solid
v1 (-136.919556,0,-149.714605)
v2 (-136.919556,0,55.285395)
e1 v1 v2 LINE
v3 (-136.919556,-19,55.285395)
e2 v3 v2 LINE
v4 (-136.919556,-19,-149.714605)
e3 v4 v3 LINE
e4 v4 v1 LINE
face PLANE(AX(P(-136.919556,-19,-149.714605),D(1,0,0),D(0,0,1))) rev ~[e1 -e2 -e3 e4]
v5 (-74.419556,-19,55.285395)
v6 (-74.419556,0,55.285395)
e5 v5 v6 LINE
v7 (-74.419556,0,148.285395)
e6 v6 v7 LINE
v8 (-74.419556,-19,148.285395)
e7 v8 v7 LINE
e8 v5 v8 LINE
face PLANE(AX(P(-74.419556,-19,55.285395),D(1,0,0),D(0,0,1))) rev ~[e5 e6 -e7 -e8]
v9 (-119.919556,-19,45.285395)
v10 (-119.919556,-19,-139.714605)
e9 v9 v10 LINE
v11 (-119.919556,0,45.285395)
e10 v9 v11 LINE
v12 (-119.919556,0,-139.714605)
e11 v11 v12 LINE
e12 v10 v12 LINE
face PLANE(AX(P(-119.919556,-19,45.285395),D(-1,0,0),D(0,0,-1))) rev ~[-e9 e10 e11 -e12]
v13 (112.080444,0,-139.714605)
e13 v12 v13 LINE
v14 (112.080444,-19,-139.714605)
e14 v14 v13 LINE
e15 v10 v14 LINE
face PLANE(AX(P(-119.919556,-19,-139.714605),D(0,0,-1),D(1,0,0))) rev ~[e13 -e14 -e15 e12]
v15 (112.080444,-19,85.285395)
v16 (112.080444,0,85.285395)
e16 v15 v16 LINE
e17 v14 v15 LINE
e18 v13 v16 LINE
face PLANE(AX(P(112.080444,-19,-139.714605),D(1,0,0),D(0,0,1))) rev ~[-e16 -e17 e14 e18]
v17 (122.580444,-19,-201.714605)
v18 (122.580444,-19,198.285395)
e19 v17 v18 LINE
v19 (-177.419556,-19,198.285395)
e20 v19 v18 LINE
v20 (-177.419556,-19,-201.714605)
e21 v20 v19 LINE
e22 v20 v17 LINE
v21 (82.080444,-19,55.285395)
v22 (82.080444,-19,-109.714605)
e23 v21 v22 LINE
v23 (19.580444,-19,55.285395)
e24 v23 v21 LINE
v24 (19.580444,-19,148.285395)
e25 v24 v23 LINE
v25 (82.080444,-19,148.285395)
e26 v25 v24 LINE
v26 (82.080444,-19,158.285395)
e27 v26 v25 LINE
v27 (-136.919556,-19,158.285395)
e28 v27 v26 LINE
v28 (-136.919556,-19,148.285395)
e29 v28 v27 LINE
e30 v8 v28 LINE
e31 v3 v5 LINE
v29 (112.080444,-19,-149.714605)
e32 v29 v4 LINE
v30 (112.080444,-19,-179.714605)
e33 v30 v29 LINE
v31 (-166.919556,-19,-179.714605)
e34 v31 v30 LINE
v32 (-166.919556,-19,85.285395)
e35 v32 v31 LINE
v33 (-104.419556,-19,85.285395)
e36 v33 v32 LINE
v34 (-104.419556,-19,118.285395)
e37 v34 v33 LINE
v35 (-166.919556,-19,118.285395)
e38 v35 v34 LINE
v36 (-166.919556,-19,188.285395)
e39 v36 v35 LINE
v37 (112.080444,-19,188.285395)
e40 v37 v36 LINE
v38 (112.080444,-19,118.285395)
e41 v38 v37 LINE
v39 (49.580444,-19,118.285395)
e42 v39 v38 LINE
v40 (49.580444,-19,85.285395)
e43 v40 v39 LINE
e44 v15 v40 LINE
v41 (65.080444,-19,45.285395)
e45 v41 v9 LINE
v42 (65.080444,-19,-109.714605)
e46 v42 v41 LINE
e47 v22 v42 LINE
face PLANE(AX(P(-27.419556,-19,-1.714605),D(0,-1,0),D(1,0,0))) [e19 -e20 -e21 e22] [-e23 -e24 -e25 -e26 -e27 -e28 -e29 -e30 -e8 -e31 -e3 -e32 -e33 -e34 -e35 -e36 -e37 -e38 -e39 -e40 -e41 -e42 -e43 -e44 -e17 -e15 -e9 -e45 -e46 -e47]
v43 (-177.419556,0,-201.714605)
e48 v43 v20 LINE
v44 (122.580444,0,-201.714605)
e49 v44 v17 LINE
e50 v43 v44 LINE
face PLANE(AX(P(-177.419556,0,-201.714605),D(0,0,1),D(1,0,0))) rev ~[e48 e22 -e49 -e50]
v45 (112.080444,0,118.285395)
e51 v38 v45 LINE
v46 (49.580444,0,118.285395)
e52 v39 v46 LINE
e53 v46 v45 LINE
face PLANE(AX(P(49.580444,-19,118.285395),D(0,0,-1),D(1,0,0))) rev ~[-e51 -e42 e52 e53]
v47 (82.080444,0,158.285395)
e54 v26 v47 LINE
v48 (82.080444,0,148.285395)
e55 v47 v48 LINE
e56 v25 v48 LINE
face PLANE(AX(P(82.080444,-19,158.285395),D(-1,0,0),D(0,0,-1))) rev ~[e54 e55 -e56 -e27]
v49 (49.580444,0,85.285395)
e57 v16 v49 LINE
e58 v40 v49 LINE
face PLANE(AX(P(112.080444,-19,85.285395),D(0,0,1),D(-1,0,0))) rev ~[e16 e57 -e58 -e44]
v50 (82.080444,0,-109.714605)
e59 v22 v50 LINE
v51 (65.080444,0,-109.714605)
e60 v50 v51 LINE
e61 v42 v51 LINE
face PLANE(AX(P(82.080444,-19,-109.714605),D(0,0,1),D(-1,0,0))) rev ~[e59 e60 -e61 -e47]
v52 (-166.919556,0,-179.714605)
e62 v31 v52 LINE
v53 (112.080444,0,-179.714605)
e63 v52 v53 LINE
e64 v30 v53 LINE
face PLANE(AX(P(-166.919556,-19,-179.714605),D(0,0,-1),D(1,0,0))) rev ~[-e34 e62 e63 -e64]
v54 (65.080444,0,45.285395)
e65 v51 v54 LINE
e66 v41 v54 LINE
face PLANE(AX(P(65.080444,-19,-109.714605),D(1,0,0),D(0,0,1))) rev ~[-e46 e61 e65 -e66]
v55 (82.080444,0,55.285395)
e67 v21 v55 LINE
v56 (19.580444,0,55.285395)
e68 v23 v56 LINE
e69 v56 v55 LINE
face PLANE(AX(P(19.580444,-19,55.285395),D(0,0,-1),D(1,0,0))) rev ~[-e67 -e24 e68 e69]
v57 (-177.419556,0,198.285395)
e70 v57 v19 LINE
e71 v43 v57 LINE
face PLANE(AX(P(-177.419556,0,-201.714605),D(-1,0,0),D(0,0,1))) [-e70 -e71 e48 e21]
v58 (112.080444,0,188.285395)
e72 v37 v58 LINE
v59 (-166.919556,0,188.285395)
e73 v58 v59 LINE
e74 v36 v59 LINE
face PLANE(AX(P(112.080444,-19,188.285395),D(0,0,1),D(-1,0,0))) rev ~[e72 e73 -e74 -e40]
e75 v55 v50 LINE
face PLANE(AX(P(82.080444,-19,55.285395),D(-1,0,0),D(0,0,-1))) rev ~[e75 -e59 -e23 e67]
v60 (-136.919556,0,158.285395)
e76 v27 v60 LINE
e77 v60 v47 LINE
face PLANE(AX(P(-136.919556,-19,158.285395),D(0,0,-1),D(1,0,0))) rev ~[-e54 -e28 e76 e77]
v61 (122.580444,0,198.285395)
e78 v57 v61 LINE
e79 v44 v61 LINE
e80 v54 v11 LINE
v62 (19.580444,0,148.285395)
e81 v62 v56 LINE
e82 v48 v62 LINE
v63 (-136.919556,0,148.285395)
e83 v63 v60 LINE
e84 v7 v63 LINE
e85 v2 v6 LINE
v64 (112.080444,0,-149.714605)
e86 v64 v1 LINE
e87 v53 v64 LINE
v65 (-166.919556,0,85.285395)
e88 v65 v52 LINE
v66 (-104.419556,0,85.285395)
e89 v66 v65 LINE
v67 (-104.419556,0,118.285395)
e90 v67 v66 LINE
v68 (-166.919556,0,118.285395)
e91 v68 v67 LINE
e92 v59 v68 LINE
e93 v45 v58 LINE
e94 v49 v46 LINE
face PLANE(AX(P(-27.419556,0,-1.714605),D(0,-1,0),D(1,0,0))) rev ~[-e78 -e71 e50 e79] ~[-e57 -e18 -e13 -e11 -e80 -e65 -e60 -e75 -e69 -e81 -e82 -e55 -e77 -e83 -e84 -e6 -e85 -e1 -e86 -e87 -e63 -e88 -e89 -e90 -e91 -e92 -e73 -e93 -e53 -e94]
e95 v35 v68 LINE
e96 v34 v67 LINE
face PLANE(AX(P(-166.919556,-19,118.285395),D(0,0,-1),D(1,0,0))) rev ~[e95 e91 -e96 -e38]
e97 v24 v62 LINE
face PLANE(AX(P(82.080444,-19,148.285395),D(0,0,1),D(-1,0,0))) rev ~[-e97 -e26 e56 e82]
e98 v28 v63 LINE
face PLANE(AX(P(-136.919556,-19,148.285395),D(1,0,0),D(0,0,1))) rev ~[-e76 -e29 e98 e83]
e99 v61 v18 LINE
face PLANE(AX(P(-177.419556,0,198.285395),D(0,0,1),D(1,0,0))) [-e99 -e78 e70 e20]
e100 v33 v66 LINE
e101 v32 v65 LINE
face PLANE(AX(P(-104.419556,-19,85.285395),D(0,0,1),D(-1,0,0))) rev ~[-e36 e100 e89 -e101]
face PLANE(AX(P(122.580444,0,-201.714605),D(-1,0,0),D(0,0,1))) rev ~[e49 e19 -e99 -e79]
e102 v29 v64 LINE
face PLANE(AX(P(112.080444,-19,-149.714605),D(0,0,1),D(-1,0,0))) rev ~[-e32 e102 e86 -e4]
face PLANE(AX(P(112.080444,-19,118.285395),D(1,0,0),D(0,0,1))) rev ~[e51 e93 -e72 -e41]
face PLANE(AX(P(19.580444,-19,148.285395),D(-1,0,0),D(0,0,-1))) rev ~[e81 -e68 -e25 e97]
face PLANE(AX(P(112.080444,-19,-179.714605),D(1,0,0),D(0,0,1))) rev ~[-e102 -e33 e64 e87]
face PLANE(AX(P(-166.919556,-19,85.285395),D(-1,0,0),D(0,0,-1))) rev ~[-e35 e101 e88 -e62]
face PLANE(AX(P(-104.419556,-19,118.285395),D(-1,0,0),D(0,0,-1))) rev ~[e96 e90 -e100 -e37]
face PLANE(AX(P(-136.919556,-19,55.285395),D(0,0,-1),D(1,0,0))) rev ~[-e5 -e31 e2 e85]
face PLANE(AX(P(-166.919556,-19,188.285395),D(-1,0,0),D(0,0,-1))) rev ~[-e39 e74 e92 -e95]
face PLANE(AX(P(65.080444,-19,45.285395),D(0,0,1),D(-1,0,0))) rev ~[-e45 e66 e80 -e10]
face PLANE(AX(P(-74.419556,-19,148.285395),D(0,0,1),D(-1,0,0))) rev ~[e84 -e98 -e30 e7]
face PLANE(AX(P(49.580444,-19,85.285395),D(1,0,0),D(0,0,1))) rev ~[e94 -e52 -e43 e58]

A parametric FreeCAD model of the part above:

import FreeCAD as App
import Part
import Sketcher

V = App.Vector
Q = App.Units.Quantity


def add_polygon(sketch, points):
    """Adds a closed chain of lines whose ends are joined by coincident constraints."""
    first, n = sketch.GeometryCount, len(points)
    for a, b in zip(points, points[1:] + points[:1]):
        sketch.addGeometry(Part.LineSegment(App.Vector(*a, 0), App.Vector(*b, 0)), False)
    for i in range(n):
        sketch.addConstraint(Sketcher.Constraint("Coincident", first + i, 2, first + (i + 1) % n, 1))

doc = App.newDocument("Part")
params = doc.addObject("Spreadsheet::Sheet", "Params")
for row, (alias, value) in enumerate([
    ("sketch1_width", "300 mm"),
    ("sketch1_height", "400 mm"),
    ("pad1_length", "19 mm"),
    ("sketch2_width", "279 mm"),
    ("sketch2_width2", "249 mm"),
    ("sketch2_width3", "219 mm"),
    ("sketch2_width4", "17 mm"),
    ("sketch2_width5", "185 mm"),
    ("pocket1_length", "19 mm"),
], start=1):
    params.set(f"A{row}", alias)
    params.set(f"B{row}", "=" + value)
    params.setAlias(f"B{row}", alias)

body = doc.addObject("PartDesign::Body", "Body")

# Sketch on XZ plane
sketch1 = body.newObject("Sketcher::SketchObject", "Sketch")
sketch1.AttachmentSupport = (doc.getObject("XZ_Plane"), [""])
sketch1.MapMode = "FlatFace"
add_polygon(sketch1, [(-177.419556, 198.285395), (-177.419556, -201.714605), (122.580444, -201.714605), (122.580444, 198.285395)])  # lines 0-3
sketch1.addConstraint(Sketcher.Constraint("Vertical", 0))
sketch1.addConstraint(Sketcher.Constraint("Horizontal", 1))
sketch1.addConstraint(Sketcher.Constraint("Vertical", 2))
sketch1.addConstraint(Sketcher.Constraint("Horizontal", 3))
sketch1.addConstraint(Sketcher.Constraint("DistanceX", 1, 1, 1, 2, Q("300 mm")))
sketch1.addConstraint(Sketcher.Constraint("DistanceY", 0, 2, 0, 1, Q("400 mm")))
sketch1.addConstraint(Sketcher.Constraint("DistanceX", 0, 2, -1, 1, Q("177.419556 mm")))
sketch1.addConstraint(Sketcher.Constraint("DistanceY", 0, 2, -1, 1, Q("201.714605 mm")))
sketch1.setExpression("Constraints[8]", "Params.sketch1_width")
sketch1.setExpression("Constraints[9]", "Params.sketch1_height")
pad1 = body.newObject("PartDesign::Pad", "Pad")
pad1.Profile = sketch1
pad1.setExpression("Length", "Params.pad1_length")

# Sketch on XZ plane
sketch2 = body.newObject("Sketcher::SketchObject", "Sketch001")
sketch2.AttachmentSupport = (doc.getObject("XZ_Plane"), [""])
sketch2.MapMode = "FlatFace"
sketch2.AttachmentOffset = App.Placement(V(0, 0, 19), App.Rotation())
add_polygon(sketch2, [(-166.919556, -179.714605), (112.080444, -179.714605), (112.080444, -149.714605), (-136.919556, -149.714605), (-136.919556, 55.285395), (-74.419556, 55.285395), (-74.419556, 148.285395), (-136.919556, 148.285395), (-136.919556, 158.285395), (82.080444, 158.285395), (82.080444, 148.285395), (19.580444, 148.285395), (19.580444, 55.285395), (82.080444, 55.285395), (82.080444, -109.714605), (65.080444, -109.714605), (65.080444, 45.285395), (-119.919556, 45.285395), (-119.919556, -139.714605), (112.080444, -139.714605), (112.080444, 85.285395), (49.580444, 85.285395), (49.580444, 118.285395), (112.080444, 118.285395), (112.080444, 188.285395), (-166.919556, 188.285395), (-166.919556, 118.285395), (-104.419556, 118.285395), (-104.419556, 85.285395), (-166.919556, 85.285395)])  # lines 0-29
sketch2.addConstraint(Sketcher.Constraint("Horizontal", 0))
sketch2.addConstraint(Sketcher.Constraint("Vertical", 1))
sketch2.addConstraint(Sketcher.Constraint("Horizontal", 2))
sketch2.addConstraint(Sketcher.Constraint("Vertical", 3))
sketch2.addConstraint(Sketcher.Constraint("Horizontal", 4))
sketch2.addConstraint(Sketcher.Constraint("Vertical", 5))
sketch2.addConstraint(Sketcher.Constraint("Horizontal", 6))
sketch2.addConstraint(Sketcher.Constraint("Vertical", 7))
sketch2.addConstraint(Sketcher.Constraint("Horizontal", 8))
sketch2.addConstraint(Sketcher.Constraint("Vertical", 9))
sketch2.addConstraint(Sketcher.Constraint("Horizontal", 10))
sketch2.addConstraint(Sketcher.Constraint("Vertical", 11))
sketch2.addConstraint(Sketcher.Constraint("Horizontal", 12))
sketch2.addConstraint(Sketcher.Constraint("Vertical", 13))
sketch2.addConstraint(Sketcher.Constraint("Horizontal", 14))
sketch2.addConstraint(Sketcher.Constraint("Vertical", 15))
sketch2.addConstraint(Sketcher.Constraint("Horizontal", 16))
sketch2.addConstraint(Sketcher.Constraint("Vertical", 17))
sketch2.addConstraint(Sketcher.Constraint("Horizontal", 18))
sketch2.addConstraint(Sketcher.Constraint("Vertical", 19))
sketch2.addConstraint(Sketcher.Constraint("Horizontal", 20))
sketch2.addConstraint(Sketcher.Constraint("Vertical", 21))
sketch2.addConstraint(Sketcher.Constraint("Horizontal", 22))
sketch2.addConstraint(Sketcher.Constraint("Vertical", 23))
sketch2.addConstraint(Sketcher.Constraint("Horizontal", 24))
sketch2.addConstraint(Sketcher.Constraint("Vertical", 25))
sketch2.addConstraint(Sketcher.Constraint("Horizontal", 26))
sketch2.addConstraint(Sketcher.Constraint("Vertical", 27))
sketch2.addConstraint(Sketcher.Constraint("Horizontal", 28))
sketch2.addConstraint(Sketcher.Constraint("Vertical", 29))
sketch2.addConstraint(Sketcher.Constraint("Horizontal", 6, 2, 9, 2))
sketch2.addConstraint(Sketcher.Constraint("Horizontal", 4, 2, 11, 2))
sketch2.addConstraint(Sketcher.Constraint("Horizontal", 22, 2, 25, 2))
sketch2.addConstraint(Sketcher.Constraint("Horizontal", 20, 2, 27, 2))
sketch2.addConstraint(Sketcher.Constraint("Vertical", 3, 2, 6, 2))
sketch2.addConstraint(Sketcher.Constraint("Vertical", 9, 2, 12, 2))
sketch2.addConstraint(Sketcher.Constraint("Vertical", 1, 2, 18, 2))
sketch2.addConstraint(Sketcher.Constraint("Vertical", 19, 2, 22, 2))
sketch2.addConstraint(Sketcher.Constraint("Vertical", 25, 2, 28, 2))
sketch2.addConstraint(Sketcher.Constraint("Equal", 6, 10))
sketch2.addConstraint(Sketcher.Constraint("Equal", 12, 20))
sketch2.addConstraint(Sketcher.Constraint("Equal", 22, 26))
sketch2.addConstraint(Sketcher.Constraint("Equal", 16, 17))
sketch2.addConstraint(Sketcher.Constraint("DistanceX", 0, 1, 0, 2, Q("279 mm")))
sketch2.addConstraint(Sketcher.Constraint("DistanceX", 2, 2, 2, 1, Q("249 mm")))
sketch2.addConstraint(Sketcher.Constraint("DistanceX", 8, 1, 8, 2, Q("219 mm")))
sketch2.addConstraint(Sketcher.Constraint("DistanceX", 14, 2, 14, 1, Q("17 mm")))
sketch2.addConstraint(Sketcher.Constraint("DistanceX", 16, 2, 16, 1, Q("185 mm")))
sketch2.addConstraint(Sketcher.Constraint("DistanceY", 1, 1, 1, 2, Q("30 mm")))
sketch2.addConstraint(Sketcher.Constraint("DistanceY", 3, 1, 3, 2, Q("205 mm")))
sketch2.addConstraint(Sketcher.Constraint("DistanceY", 5, 1, 5, 2, Q("93 mm")))
sketch2.addConstraint(Sketcher.Constraint("DistanceY", 7, 1, 7, 2, Q("10 mm")))
sketch2.addConstraint(Sketcher.Constraint("DistanceY", 13, 2, 13, 1, Q("165 mm")))
sketch2.addConstraint(Sketcher.Constraint("DistanceY", 15, 1, 15, 2, Q("155 mm")))
sketch2.addConstraint(Sketcher.Constraint("DistanceY", 19, 1, 19, 2, Q("225 mm")))
sketch2.addConstraint(Sketcher.Constraint("DistanceY", 21, 1, 21, 2, Q("33 mm")))
sketch2.addConstraint(Sketcher.Constraint("DistanceY", 23, 1, 23, 2, Q("70 mm")))
sketch2.addConstraint(Sketcher.Constraint("DistanceX", 4, 1, 4, 2, Q("62.5 mm")))
sketch2.addConstraint(Sketcher.Constraint("DistanceX", -1, 1, 0, 2, Q("112.080444 mm")))
sketch2.addConstraint(Sketcher.Constraint("DistanceY", 0, 2, -1, 1, Q("179.714605 mm")))
sketch2.setExpression("Constraints[73]", "Params.sketch2_width")
sketch2.setExpression("Constraints[74]", "Params.sketch2_width2")
sketch2.setExpression("Constraints[75]", "Params.sketch2_width3")
sketch2.setExpression("Constraints[76]", "Params.sketch2_width4")
sketch2.setExpression("Constraints[77]", "Params.sketch2_width5")
pocket1 = body.newObject("PartDesign::Pocket", "Pocket")
pocket1.Profile = sketch2
pocket1.setExpression("Length", "Params.pocket1_length")

doc.recompute()
